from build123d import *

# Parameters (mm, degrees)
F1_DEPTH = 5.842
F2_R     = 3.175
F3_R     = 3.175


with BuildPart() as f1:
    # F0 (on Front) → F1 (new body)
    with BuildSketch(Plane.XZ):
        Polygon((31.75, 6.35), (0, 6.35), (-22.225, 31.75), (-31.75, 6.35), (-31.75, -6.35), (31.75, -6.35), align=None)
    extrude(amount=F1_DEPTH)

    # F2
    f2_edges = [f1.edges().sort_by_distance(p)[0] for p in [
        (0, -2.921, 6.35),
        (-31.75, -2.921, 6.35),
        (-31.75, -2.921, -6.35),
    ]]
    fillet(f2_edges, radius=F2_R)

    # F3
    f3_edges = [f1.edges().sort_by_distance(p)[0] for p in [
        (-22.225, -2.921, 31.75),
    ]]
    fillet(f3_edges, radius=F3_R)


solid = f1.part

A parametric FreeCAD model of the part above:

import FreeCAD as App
import Part
import Sketcher
Q = App.Units.Quantity


def edges_at(feature, points):
    """Names of the edges that pass closest to the given points."""
    edges = feature.Shape.Edges
    near = lambda p: min(range(len(edges)), key=lambda i: edges[i].distToShape(Part.Vertex(*p))[0])
    return sorted({f"Edge{near(p) + 1}" for p in points})


def add_polygon(sketch, points):
    """Adds a closed chain of lines whose ends are joined by coincident constraints."""
    first, n = sketch.GeometryCount, len(points)
    for a, b in zip(points, points[1:] + points[:1]):
        sketch.addGeometry(Part.LineSegment(App.Vector(*a, 0), App.Vector(*b, 0)), False)
    for i in range(n):
        sketch.addConstraint(Sketcher.Constraint("Coincident", first + i, 2, first + (i + 1) % n, 1))

doc = App.newDocument("Part")
params = doc.addObject("Spreadsheet::Sheet", "Params")
for row, (alias, value) in enumerate([
    ("sketch1_width", "2.5 in"),
    ("sketch1_height", "0.5 in"),
    ("pad1_length", "0.23 in"),
    ("fillet_radius", "0.125 in"),
    ("fillet2_radius", "0.125 in"),
], start=1):
    params.set(f"A{row}", alias)
    params.set(f"B{row}", "=" + value)
    params.setAlias(f"B{row}", alias)

body = doc.addObject("PartDesign::Body", "Body")

# Sketch on XZ plane
sketch1 = doc.addObject("Sketcher::SketchObject", "Sketch")
body.addObject(sketch1)
sketch1.AttachmentSupport = (doc.XZ_Plane, [""])
sketch1.MapMode = "FlatFace"
add_polygon(sketch1, [(32, 6), (0, 6), (-22, 32), (-32, 6), (-32, -6), (32, -6)])  # lines 0-5
sketch1.addConstraint([
    Sketcher.Constraint("Horizontal", 0),
    Sketcher.Constraint("Vertical", 3),
    Sketcher.Constraint("Horizontal", 4),
    Sketcher.Constraint("Vertical", 5),
    Sketcher.Constraint("Symmetric", 2, 2, 4, 2, -1, 1),
    Sketcher.Constraint("PointOnObject", 0, 2, -2),
    Sketcher.Constraint("Horizontal", 0, 2, 2, 2),
    Sketcher.Constraint("DistanceX", 4, 1, 4, 2, Q("2.5 in")),
    Sketcher.Constraint("DistanceY", 3, 2, 3, 1, Q("0.5 in")),
    Sketcher.Constraint("DistanceY", 0, 2, 1, 2, Q("1 in")),
    Sketcher.Constraint("DistanceX", 1, 2, -1, 1, Q("0.875 in")),
])
sketch1.setExpression("Constraints[13]", "Params.sketch1_width")
sketch1.setExpression("Constraints[14]", "Params.sketch1_height")
pad1 = doc.addObject("PartDesign::Pad", "Pad")
body.addObject(pad1)
pad1.Profile = sketch1
pad1.setExpression("Length", "Params.pad1_length")
doc.recompute()

fillet = doc.addObject("PartDesign::Fillet", "Fillet")
body.addObject(fillet)
fillet.Base = (pad1, edges_at(pad1, [(0, -2.921, 6.35), (-31.75, -2.921, 6.35), (-31.75, -2.921, -6.35)]))
fillet.setExpression("Radius", "Params.fillet_radius")
doc.recompute()

fillet2 = doc.addObject("PartDesign::Fillet", "Fillet001")
body.addObject(fillet2)
fillet2.Base = (fillet, edges_at(fillet, [(-22.225, -2.921, 31.75)]))
fillet2.setExpression("Radius", "Params.fillet2_radius")

doc.recompute()
